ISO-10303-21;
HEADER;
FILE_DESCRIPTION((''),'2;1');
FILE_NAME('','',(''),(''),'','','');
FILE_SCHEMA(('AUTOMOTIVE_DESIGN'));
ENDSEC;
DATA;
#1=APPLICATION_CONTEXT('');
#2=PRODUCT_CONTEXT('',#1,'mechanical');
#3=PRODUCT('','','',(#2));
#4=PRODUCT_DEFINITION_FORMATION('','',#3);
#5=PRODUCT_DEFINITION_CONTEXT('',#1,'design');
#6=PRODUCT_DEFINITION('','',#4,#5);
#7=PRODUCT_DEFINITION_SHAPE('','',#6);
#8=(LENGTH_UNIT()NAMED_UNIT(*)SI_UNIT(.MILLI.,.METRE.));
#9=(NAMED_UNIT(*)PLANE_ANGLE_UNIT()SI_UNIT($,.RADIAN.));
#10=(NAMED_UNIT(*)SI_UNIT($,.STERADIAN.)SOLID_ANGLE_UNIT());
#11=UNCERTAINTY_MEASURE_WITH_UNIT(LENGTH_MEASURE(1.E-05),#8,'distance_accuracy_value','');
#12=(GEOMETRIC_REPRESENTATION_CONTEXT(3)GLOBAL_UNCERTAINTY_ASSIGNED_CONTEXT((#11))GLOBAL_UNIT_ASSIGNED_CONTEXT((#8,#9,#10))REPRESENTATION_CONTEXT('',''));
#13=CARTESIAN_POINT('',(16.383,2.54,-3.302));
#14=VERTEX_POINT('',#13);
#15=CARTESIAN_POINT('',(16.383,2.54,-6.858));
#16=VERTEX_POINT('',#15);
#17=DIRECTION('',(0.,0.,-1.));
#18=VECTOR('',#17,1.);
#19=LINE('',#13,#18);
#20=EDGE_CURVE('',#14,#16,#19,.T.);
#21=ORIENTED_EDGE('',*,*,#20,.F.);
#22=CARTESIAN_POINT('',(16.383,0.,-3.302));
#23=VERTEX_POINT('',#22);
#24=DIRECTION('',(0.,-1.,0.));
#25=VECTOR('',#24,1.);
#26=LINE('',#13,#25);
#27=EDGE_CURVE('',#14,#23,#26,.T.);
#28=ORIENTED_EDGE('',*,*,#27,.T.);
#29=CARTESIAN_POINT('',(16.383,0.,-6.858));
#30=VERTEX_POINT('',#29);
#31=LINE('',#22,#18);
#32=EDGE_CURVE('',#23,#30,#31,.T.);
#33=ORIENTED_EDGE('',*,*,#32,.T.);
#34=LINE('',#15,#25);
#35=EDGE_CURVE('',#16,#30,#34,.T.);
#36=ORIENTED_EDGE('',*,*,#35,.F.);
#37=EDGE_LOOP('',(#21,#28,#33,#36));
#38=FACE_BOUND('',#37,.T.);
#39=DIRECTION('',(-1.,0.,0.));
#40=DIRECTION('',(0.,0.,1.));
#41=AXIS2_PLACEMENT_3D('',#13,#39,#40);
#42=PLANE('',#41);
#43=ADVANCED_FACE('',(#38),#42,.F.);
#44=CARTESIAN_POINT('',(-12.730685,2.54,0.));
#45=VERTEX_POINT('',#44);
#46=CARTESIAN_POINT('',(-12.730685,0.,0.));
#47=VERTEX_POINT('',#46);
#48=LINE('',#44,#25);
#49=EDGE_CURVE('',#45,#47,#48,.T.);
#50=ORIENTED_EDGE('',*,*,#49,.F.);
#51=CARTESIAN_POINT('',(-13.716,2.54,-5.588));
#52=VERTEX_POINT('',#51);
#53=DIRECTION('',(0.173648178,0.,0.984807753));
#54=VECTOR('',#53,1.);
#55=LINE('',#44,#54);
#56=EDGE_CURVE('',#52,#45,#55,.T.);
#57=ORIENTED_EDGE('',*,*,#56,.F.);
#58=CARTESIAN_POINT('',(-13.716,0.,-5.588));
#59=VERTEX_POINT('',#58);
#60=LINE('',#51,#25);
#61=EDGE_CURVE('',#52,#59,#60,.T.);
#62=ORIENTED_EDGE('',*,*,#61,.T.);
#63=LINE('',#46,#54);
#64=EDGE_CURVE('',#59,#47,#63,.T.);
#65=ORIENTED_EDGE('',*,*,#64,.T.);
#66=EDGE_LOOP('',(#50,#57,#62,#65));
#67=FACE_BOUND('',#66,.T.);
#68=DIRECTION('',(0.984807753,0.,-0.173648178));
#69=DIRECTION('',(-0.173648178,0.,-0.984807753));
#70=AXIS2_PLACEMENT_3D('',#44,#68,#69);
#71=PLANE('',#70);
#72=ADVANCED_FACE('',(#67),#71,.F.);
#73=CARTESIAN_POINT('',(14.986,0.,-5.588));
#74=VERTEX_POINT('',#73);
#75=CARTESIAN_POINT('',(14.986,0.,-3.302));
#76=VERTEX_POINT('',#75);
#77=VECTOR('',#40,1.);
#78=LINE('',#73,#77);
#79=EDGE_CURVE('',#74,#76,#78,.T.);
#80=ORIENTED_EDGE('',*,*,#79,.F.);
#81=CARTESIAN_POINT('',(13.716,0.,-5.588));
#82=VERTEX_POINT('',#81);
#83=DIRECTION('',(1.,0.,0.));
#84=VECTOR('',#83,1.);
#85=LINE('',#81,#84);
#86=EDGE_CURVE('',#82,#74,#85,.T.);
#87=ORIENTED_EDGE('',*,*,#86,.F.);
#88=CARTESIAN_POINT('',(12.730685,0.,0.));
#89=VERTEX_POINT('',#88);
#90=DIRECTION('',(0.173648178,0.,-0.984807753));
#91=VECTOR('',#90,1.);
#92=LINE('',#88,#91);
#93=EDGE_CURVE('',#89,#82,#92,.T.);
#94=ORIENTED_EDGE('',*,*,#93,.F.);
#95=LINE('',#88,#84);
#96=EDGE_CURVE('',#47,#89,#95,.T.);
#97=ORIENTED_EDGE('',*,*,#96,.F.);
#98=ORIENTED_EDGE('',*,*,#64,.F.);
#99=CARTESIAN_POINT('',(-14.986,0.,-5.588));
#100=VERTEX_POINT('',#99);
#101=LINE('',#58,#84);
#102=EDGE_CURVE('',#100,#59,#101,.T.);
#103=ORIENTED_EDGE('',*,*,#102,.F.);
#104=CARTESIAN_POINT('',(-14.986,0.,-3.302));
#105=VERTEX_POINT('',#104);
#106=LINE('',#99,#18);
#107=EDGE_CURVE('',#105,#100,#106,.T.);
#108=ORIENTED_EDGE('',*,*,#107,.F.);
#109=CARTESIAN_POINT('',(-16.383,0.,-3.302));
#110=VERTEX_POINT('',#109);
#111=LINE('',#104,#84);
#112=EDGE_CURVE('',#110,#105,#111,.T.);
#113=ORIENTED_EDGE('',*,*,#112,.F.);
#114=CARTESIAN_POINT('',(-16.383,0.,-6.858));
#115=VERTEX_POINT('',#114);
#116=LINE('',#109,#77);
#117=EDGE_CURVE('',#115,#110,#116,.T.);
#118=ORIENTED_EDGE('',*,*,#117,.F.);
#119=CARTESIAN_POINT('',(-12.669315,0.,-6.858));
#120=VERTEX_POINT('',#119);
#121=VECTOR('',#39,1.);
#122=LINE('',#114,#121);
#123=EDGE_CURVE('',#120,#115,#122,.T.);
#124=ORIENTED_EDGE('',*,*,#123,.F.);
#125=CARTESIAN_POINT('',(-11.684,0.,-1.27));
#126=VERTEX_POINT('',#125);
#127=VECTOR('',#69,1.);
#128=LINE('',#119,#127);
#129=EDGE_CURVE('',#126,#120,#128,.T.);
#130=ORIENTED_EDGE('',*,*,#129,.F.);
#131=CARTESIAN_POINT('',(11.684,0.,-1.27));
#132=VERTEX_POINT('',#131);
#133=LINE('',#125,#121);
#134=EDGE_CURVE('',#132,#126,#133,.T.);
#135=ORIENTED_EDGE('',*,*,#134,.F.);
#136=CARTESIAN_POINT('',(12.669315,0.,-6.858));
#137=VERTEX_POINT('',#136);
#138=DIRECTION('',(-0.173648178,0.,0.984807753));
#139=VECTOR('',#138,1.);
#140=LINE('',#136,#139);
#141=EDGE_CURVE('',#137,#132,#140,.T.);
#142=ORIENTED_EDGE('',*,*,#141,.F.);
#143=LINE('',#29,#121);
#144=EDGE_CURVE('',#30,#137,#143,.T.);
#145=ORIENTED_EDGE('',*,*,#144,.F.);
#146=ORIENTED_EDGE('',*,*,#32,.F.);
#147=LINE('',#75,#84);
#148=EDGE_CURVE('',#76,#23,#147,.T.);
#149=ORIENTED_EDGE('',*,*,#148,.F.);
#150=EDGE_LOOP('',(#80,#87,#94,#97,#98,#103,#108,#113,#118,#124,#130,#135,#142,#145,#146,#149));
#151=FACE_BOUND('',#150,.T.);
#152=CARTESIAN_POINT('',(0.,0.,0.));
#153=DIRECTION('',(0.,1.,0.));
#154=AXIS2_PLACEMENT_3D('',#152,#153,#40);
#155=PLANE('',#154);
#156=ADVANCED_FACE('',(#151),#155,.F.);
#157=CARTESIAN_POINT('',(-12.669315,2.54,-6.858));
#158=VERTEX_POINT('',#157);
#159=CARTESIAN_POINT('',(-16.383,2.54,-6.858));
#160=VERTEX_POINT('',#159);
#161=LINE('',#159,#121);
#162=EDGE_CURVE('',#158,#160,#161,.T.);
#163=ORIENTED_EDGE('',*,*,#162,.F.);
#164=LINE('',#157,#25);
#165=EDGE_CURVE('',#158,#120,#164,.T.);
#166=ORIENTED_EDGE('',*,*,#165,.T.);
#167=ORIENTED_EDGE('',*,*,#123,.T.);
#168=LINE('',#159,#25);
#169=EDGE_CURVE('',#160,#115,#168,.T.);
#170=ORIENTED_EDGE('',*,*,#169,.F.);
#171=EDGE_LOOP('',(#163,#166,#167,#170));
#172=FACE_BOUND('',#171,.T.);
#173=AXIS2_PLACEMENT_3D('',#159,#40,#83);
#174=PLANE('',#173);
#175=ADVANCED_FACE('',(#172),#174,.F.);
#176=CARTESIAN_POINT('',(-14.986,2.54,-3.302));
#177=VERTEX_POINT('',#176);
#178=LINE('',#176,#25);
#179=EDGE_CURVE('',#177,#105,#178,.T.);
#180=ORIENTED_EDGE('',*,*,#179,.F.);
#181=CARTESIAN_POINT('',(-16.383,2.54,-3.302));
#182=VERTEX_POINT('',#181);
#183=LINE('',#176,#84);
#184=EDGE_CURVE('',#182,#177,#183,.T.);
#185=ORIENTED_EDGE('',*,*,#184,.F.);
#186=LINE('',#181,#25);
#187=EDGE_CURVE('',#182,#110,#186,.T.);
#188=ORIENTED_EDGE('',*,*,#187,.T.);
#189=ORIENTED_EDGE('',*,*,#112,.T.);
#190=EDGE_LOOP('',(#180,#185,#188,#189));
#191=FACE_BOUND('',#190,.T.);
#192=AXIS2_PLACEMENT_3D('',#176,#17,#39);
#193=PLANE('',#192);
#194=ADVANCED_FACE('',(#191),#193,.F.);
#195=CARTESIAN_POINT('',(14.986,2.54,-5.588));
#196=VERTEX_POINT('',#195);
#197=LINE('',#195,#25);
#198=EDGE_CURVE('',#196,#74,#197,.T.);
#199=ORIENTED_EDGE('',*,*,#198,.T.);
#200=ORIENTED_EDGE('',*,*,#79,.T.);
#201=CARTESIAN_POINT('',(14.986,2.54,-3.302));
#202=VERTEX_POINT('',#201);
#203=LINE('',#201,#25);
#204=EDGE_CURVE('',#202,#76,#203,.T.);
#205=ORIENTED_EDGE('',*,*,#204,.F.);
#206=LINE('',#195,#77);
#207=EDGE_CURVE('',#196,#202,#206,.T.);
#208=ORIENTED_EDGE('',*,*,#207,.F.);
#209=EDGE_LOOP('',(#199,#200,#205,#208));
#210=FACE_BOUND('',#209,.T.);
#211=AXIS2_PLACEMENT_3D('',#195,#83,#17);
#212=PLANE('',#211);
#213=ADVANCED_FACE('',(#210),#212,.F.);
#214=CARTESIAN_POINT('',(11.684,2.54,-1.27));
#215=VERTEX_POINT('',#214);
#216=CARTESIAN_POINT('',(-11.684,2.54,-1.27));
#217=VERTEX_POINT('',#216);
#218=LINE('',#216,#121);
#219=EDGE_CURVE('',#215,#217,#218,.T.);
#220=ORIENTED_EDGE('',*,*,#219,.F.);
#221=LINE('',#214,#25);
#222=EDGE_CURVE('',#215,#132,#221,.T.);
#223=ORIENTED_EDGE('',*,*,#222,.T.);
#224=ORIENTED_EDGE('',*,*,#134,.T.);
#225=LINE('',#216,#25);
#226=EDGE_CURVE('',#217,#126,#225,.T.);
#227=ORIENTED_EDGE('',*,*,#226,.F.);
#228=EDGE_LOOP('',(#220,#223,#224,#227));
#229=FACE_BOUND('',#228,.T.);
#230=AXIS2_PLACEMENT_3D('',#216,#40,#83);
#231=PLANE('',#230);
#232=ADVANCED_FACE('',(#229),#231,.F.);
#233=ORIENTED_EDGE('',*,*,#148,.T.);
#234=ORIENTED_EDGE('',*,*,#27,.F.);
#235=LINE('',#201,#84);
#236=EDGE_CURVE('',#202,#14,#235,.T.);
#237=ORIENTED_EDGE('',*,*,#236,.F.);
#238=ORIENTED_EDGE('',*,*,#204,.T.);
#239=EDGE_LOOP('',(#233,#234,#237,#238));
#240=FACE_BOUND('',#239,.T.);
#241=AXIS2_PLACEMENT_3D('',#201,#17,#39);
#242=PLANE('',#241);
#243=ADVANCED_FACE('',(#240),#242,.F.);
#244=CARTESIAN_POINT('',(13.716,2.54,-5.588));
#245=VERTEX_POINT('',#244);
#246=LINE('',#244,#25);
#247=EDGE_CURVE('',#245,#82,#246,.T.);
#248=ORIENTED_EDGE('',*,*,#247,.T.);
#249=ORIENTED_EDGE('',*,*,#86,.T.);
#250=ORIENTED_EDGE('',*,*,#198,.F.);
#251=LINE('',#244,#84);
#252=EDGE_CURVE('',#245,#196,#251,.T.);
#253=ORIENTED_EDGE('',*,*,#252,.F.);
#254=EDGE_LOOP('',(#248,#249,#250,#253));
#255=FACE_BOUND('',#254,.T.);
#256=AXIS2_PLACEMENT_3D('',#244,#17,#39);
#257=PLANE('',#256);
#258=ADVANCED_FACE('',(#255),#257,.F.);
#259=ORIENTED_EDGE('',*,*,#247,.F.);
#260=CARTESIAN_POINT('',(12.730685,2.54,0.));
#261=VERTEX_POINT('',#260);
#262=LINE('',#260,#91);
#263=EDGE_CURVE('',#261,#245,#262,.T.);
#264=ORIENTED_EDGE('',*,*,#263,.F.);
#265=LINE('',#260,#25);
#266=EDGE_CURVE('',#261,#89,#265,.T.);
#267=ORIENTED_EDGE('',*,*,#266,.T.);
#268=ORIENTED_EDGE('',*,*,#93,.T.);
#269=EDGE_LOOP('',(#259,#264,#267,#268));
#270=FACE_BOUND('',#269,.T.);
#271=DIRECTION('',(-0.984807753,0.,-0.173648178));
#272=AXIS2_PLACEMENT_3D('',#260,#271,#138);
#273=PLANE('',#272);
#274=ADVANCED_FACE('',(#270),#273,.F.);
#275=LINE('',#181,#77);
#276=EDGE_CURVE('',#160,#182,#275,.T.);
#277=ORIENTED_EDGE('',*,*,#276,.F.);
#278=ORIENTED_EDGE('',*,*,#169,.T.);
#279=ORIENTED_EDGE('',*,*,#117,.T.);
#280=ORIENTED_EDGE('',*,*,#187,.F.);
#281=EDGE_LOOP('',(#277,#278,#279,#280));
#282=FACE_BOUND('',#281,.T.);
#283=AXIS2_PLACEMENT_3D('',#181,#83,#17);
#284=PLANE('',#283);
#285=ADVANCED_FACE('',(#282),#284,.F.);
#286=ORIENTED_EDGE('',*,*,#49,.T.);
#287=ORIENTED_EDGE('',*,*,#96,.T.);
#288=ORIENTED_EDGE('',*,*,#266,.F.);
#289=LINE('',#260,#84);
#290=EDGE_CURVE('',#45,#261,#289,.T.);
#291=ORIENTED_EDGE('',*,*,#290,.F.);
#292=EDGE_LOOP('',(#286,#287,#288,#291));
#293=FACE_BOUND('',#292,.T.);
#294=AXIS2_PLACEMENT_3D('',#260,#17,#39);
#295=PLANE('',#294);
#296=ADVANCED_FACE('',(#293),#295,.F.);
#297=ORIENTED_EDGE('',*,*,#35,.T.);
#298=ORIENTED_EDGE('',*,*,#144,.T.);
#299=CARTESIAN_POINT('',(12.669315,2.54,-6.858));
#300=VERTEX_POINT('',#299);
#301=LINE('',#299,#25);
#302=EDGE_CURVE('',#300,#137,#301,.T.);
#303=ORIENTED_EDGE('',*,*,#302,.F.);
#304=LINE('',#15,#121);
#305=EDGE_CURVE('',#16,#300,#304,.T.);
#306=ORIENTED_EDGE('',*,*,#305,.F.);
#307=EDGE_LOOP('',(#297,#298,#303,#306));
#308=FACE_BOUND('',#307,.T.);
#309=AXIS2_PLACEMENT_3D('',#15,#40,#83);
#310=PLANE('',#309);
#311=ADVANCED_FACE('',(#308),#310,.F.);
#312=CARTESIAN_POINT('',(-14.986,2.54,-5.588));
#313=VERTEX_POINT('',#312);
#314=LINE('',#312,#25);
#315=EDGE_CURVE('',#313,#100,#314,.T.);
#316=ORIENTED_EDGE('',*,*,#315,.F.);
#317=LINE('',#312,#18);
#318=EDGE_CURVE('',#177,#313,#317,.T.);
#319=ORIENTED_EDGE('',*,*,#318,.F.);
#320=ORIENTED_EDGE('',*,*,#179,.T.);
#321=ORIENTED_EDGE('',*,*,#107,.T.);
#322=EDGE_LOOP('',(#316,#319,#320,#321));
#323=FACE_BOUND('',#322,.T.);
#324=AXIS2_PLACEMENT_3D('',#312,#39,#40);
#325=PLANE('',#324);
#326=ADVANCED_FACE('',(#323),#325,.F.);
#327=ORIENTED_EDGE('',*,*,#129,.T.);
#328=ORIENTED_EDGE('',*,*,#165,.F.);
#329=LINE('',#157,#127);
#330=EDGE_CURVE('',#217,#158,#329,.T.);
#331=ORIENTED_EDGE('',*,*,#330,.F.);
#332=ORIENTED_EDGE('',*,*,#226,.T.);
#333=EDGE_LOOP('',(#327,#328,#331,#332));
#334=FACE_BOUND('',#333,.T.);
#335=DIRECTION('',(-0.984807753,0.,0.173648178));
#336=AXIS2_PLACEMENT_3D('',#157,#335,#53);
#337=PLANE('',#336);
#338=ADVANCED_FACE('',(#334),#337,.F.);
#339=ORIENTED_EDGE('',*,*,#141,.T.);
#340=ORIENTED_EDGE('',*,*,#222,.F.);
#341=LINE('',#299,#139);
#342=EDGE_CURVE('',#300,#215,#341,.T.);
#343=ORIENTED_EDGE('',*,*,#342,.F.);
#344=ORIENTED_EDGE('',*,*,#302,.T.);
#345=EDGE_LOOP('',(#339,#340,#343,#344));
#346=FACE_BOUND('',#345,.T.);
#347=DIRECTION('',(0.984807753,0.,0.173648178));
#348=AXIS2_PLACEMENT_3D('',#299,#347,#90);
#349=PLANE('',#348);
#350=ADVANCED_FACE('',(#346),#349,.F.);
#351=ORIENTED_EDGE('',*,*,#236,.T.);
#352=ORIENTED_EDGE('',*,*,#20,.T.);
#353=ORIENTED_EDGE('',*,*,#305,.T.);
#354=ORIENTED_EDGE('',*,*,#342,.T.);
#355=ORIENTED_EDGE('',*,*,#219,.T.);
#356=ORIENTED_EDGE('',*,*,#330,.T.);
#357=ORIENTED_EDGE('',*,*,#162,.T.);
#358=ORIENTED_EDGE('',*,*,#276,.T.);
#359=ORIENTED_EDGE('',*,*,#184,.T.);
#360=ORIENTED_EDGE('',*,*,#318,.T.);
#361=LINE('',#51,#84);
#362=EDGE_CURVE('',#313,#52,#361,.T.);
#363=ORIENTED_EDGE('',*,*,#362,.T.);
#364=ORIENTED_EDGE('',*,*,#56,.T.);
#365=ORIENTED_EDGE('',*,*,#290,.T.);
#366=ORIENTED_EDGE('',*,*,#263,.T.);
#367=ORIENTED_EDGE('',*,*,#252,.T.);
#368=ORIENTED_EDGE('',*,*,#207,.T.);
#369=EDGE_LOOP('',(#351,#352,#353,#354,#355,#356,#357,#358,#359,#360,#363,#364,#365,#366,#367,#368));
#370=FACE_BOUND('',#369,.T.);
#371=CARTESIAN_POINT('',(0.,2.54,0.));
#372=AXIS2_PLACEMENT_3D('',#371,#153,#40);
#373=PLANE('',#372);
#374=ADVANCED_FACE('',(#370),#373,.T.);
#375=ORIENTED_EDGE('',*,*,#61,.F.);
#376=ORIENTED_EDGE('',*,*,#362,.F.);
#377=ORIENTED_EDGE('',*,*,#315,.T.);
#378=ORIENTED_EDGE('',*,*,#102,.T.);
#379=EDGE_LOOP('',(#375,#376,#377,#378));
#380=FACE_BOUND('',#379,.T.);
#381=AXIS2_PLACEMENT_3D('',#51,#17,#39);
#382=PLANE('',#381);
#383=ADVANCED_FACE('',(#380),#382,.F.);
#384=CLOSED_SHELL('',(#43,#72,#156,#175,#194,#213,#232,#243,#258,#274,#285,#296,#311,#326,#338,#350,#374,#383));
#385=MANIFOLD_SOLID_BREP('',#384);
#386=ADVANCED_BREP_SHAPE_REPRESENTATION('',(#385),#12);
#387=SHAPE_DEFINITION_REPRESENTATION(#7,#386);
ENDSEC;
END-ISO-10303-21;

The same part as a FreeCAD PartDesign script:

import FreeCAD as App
import Part
import Sketcher
Q = App.Units.Quantity


def add_polygon(sketch, points):
    """Adds a closed chain of lines whose ends are joined by coincident constraints."""
    first, n = sketch.GeometryCount, len(points)
    for a, b in zip(points, points[1:] + points[:1]):
        sketch.addGeometry(Part.LineSegment(App.Vector(*a, 0), App.Vector(*b, 0)), False)
    for i in range(n):
        sketch.addConstraint(Sketcher.Constraint("Coincident", first + i, 2, first + (i + 1) % n, 1))

doc = App.newDocument("Part")
body = doc.addObject("PartDesign::Body", "Body")

sketch1 = doc.addObject("Sketcher::SketchObject", "Sketch")
body.addObject(sketch1)
sketch1.AttachmentSupport = (doc.XZ_Plane, [""])
sketch1.MapMode = "FlatFace"
add_polygon(sketch1, [(-12.7, 0), (12.7, 0), (13.7, -5.6), (15, -5.6), (15, -3.3), (16.4, -3.3), (16.4, -6.9), (12.7, -6.9), (11.7, -1.3), (-11.7, -1.3), (-12.7, -6.9), (-16.4, -6.9), (-16.4, -3.3), (-15, -3.3), (-15, -5.6), (-13.7, -5.6)])
sketch1.addConstraint([
    Sketcher.Constraint("Horizontal", 0),
    Sketcher.Constraint("Horizontal", 2),
    Sketcher.Constraint("Vertical", 3),
    Sketcher.Constraint("Horizontal", 4),
    Sketcher.Constraint("Vertical", 5),
    Sketcher.Constraint("Horizontal", 6),
    Sketcher.Constraint("Horizontal", 8),
    Sketcher.Constraint("Horizontal", 10),
    Sketcher.Constraint("Vertical", 11),
    Sketcher.Constraint("Horizontal", 12),
    Sketcher.Constraint("Vertical", 13),
    Sketcher.Constraint("Horizontal", 14),
    Sketcher.Constraint("Symmetric", 0, 2, 15, 2, -1, 1),
    Sketcher.Constraint("Symmetric", 6, 2, 9, 2, -2),
    Sketcher.Constraint("Symmetric", 4, 2, 11, 2, -2),
    Sketcher.Constraint("Symmetric", 2, 2, 13, 2, -2),
    Sketcher.Constraint("Parallel", 1, 7),
    Sketcher.Constraint("Parallel", 9, 15),
    Sketcher.Constraint("Equal", 2, 14),
    Sketcher.Constraint("Equal", 1, 7),
    Sketcher.Constraint("Angle", 1, Q("-80 deg")),
    Sketcher.Constraint("DistanceX", 8, 2, 1, 2, Q("1 in")),
    Sketcher.Constraint("DistanceX", 2, 1, 2, 2, Q("0.05 in")),
    Sketcher.Constraint("DistanceX", 8, 2, 8, 1, Q("0.92 in")),
    Sketcher.Constraint("DistanceY", 3, 1, 3, 2, Q("0.09 in")),
    Sketcher.Constraint("DistanceY", 5, 2, 5, 1, Q("0.14 in")),
    Sketcher.Constraint("DistanceX", 4, 1, 4, 2, Q("0.055 in")),
    Sketcher.Constraint("DistanceY", 1, 2, -1, 1, Q("0.22 in")),
])
pad1 = doc.addObject("PartDesign::Pad", "Pad")
body.addObject(pad1)
pad1.Profile = sketch1
pad1.Length = Q("0.1 in")
pad1.Reversed = True

doc.recompute()
